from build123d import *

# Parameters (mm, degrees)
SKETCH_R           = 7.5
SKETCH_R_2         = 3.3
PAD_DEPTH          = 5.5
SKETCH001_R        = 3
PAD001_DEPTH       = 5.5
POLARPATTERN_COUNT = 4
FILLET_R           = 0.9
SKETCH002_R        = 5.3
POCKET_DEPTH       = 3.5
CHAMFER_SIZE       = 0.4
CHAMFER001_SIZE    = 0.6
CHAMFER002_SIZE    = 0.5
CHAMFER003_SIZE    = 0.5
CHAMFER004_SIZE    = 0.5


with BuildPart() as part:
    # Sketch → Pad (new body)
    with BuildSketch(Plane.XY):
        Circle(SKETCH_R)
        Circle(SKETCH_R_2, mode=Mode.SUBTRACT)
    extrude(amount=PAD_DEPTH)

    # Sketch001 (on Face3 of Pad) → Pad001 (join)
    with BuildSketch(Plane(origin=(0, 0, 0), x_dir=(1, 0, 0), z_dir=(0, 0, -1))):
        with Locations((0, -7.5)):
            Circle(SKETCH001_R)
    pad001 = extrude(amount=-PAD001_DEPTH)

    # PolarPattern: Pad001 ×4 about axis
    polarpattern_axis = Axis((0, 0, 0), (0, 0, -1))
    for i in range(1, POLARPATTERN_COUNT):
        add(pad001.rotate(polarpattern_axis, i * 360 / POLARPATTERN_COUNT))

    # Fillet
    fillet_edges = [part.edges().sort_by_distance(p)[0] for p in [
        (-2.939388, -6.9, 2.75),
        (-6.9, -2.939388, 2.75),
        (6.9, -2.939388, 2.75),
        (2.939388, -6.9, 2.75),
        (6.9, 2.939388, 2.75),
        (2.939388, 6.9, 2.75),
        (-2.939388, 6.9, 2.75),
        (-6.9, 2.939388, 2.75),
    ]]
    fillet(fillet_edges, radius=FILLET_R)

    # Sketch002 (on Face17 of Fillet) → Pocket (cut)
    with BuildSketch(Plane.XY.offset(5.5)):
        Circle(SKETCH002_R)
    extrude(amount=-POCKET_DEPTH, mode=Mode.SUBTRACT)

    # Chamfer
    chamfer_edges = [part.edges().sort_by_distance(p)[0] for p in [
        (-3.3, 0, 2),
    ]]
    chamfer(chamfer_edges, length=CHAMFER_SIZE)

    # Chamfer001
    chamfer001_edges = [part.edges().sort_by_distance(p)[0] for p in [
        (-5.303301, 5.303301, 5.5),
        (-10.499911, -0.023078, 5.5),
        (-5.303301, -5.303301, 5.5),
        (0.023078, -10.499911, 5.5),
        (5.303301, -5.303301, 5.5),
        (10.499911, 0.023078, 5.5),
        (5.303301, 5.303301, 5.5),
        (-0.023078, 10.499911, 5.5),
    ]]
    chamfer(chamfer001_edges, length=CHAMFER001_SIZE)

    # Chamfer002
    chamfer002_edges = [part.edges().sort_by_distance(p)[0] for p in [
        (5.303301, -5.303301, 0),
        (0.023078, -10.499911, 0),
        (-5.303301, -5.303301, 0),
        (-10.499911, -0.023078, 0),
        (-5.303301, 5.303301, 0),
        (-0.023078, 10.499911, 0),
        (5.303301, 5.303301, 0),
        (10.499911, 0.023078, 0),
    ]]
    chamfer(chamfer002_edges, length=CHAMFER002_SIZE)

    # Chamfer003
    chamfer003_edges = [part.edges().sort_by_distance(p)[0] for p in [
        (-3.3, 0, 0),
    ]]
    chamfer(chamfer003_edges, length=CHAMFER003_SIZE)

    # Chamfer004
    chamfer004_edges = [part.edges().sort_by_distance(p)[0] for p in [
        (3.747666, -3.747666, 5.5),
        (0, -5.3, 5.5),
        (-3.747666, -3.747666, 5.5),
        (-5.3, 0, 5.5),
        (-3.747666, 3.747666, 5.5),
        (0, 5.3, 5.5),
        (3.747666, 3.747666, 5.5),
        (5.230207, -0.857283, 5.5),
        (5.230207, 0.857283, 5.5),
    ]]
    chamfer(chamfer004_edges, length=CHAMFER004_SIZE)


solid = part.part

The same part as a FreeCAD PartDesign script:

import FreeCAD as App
import Part
import Sketcher
Q = App.Units.Quantity


def edges_at(feature, points):
    """Names of the edges that pass closest to the given points."""
    edges = feature.Shape.Edges
    near = lambda p: min(range(len(edges)), key=lambda i: edges[i].distToShape(Part.Vertex(*p))[0])
    return sorted({f"Edge{near(p) + 1}" for p in points})

doc = App.newDocument("Part")
body = doc.addObject("PartDesign::Body", "Body")

# Sketch on XY plane
sketch1 = body.newObject("Sketcher::SketchObject", "Sketch")
sketch1.AttachmentSupport = (doc.getObject("XY_Plane"), [""])
sketch1.MapMode = "FlatFace"
sketch1.addGeometry([
    Part.Circle(App.Vector(0, 0, 0), App.Vector(0, 0, 1), 7.5),
    Part.Circle(App.Vector(0, 0, 0), App.Vector(0, 0, 1), 3.3),
], False)
sketch1.addConstraint([
    Sketcher.Constraint("Coincident", 0, 3, -1, 1),
    Sketcher.Constraint("Coincident", 1, 3, -1, 1),
    Sketcher.Constraint("Diameter", 0, Q("15 mm")),
    Sketcher.Constraint("Diameter", 1, Q("6.6 mm")),
])
pad1 = body.newObject("PartDesign::Pad", "Pad")
pad1.Profile = sketch1
pad1.Length = 5.5

# Sketch on XY plane
sketch2 = body.newObject("Sketcher::SketchObject", "Sketch001")
sketch2.AttachmentSupport = (doc.getObject("XY_Plane"), [""])
sketch2.MapMode = "FlatFace"
sketch2.addGeometry(Part.Circle(App.Vector(0, 7.5, 0), App.Vector(0, 0, 1), 3), False)
sketch2.addConstraint([
    Sketcher.Constraint("PointOnObject", 0, 3, -2),
    Sketcher.Constraint("Diameter", 0, Q("6 mm")),
    Sketcher.Constraint("DistanceY", -1, 1, 0, 3, Q("7.5 mm")),
])
pad2 = body.newObject("PartDesign::Pad", "Pad001")
pad2.Profile = sketch2
pad2.Length = 5.5
doc.recompute()

polarpattern = body.newObject("PartDesign::PolarPattern", "PolarPattern")
polarpattern.Originals = [pad2]
polarpattern.Axis = (doc.getObject("Z_Axis"), [""])
polarpattern.Angle = 360
polarpattern.Occurrences = 4
body.Tip = polarpattern
doc.recompute()

fillet = body.newObject("PartDesign::Fillet", "Fillet")
fillet.Base = (polarpattern, edges_at(polarpattern, [
    (-2.939, -6.9, 2.75),
    (-6.9, -2.939, 2.75),
    (6.9, -2.939, 2.75),
    (2.939, -6.9, 2.75),
    (6.9, 2.939, 2.75),
    (2.939, 6.9, 2.75),
    (-2.939, 6.9, 2.75),
    (-6.9, 2.939, 2.75),
]))
fillet.Radius = 0.9

# Sketch on XY plane
sketch3 = body.newObject("Sketcher::SketchObject", "Sketch002")
sketch3.AttachmentSupport = (doc.getObject("XY_Plane"), [""])
sketch3.MapMode = "FlatFace"
sketch3.AttachmentOffset = App.Placement(App.Vector(0, 0, 5.5), App.Rotation())
sketch3.addGeometry(Part.Circle(App.Vector(0, 0, 0), App.Vector(0, 0, 1), 5), False)
sketch3.addConstraint([
    Sketcher.Constraint("Coincident", 0, 3, -1, 1),
    Sketcher.Constraint("Diameter", 0, Q("10.6 mm")),
])
pocket1 = body.newObject("PartDesign::Pocket", "Pocket")
pocket1.Profile = sketch3
pocket1.Length = 3.5
doc.recompute()

chamfer = body.newObject("PartDesign::Chamfer", "Chamfer")
chamfer.Base = (pocket1, edges_at(pocket1, [(-3.3, 0, 2)]))
chamfer.Size = 0.4
doc.recompute()

chamfer2 = body.newObject("PartDesign::Chamfer", "Chamfer001")
chamfer2.Base = (chamfer, edges_at(chamfer, [
    (-5.303, 5.303, 5.5),
    (-10.5, 0, 5.5),
    (-5.303, -5.303, 5.5),
    (0, -10.5, 5.5),
    (5.303, -5.303, 5.5),
    (10.5, 0, 5.5),
    (5.303, 5.303, 5.5),
    (0, 10.5, 5.5),
]))
chamfer2.Size = 0.6
doc.recompute()

chamfer3 = body.newObject("PartDesign::Chamfer", "Chamfer002")
chamfer3.Base = (chamfer2, edges_at(chamfer2, [
    (5.303, -5.303, 0),
    (0, -10.5, 0),
    (-5.303, -5.303, 0),
    (-10.5, 0, 0),
    (-5.303, 5.303, 0),
    (0, 10.5, 0),
    (5.303, 5.303, 0),
    (10.5, 0, 0),
]))
chamfer3.Size = 0.5
doc.recompute()

chamfer4 = body.newObject("PartDesign::Chamfer", "Chamfer003")
chamfer4.Base = (chamfer3, edges_at(chamfer3, [(-3.3, 0, 0)]))
chamfer4.Size = 0.5
doc.recompute()

chamfer5 = body.newObject("PartDesign::Chamfer", "Chamfer004")
chamfer5.Base = (chamfer4, edges_at(chamfer4, [
    (-5.3, 0, 5.5),
    (-5.3, 0, 5.5),
    (-5.3, 0, 5.5),
    (-5.3, 0, 5.5),
    (-5.3, 0, 5.5),
    (-5.3, 0, 5.5),
    (-5.3, 0, 5.5),
    (-5.3, 0, 5.5),
    (-5.3, 0, 5.5),
]))
chamfer5.Size = 0.5

doc.recompute()
